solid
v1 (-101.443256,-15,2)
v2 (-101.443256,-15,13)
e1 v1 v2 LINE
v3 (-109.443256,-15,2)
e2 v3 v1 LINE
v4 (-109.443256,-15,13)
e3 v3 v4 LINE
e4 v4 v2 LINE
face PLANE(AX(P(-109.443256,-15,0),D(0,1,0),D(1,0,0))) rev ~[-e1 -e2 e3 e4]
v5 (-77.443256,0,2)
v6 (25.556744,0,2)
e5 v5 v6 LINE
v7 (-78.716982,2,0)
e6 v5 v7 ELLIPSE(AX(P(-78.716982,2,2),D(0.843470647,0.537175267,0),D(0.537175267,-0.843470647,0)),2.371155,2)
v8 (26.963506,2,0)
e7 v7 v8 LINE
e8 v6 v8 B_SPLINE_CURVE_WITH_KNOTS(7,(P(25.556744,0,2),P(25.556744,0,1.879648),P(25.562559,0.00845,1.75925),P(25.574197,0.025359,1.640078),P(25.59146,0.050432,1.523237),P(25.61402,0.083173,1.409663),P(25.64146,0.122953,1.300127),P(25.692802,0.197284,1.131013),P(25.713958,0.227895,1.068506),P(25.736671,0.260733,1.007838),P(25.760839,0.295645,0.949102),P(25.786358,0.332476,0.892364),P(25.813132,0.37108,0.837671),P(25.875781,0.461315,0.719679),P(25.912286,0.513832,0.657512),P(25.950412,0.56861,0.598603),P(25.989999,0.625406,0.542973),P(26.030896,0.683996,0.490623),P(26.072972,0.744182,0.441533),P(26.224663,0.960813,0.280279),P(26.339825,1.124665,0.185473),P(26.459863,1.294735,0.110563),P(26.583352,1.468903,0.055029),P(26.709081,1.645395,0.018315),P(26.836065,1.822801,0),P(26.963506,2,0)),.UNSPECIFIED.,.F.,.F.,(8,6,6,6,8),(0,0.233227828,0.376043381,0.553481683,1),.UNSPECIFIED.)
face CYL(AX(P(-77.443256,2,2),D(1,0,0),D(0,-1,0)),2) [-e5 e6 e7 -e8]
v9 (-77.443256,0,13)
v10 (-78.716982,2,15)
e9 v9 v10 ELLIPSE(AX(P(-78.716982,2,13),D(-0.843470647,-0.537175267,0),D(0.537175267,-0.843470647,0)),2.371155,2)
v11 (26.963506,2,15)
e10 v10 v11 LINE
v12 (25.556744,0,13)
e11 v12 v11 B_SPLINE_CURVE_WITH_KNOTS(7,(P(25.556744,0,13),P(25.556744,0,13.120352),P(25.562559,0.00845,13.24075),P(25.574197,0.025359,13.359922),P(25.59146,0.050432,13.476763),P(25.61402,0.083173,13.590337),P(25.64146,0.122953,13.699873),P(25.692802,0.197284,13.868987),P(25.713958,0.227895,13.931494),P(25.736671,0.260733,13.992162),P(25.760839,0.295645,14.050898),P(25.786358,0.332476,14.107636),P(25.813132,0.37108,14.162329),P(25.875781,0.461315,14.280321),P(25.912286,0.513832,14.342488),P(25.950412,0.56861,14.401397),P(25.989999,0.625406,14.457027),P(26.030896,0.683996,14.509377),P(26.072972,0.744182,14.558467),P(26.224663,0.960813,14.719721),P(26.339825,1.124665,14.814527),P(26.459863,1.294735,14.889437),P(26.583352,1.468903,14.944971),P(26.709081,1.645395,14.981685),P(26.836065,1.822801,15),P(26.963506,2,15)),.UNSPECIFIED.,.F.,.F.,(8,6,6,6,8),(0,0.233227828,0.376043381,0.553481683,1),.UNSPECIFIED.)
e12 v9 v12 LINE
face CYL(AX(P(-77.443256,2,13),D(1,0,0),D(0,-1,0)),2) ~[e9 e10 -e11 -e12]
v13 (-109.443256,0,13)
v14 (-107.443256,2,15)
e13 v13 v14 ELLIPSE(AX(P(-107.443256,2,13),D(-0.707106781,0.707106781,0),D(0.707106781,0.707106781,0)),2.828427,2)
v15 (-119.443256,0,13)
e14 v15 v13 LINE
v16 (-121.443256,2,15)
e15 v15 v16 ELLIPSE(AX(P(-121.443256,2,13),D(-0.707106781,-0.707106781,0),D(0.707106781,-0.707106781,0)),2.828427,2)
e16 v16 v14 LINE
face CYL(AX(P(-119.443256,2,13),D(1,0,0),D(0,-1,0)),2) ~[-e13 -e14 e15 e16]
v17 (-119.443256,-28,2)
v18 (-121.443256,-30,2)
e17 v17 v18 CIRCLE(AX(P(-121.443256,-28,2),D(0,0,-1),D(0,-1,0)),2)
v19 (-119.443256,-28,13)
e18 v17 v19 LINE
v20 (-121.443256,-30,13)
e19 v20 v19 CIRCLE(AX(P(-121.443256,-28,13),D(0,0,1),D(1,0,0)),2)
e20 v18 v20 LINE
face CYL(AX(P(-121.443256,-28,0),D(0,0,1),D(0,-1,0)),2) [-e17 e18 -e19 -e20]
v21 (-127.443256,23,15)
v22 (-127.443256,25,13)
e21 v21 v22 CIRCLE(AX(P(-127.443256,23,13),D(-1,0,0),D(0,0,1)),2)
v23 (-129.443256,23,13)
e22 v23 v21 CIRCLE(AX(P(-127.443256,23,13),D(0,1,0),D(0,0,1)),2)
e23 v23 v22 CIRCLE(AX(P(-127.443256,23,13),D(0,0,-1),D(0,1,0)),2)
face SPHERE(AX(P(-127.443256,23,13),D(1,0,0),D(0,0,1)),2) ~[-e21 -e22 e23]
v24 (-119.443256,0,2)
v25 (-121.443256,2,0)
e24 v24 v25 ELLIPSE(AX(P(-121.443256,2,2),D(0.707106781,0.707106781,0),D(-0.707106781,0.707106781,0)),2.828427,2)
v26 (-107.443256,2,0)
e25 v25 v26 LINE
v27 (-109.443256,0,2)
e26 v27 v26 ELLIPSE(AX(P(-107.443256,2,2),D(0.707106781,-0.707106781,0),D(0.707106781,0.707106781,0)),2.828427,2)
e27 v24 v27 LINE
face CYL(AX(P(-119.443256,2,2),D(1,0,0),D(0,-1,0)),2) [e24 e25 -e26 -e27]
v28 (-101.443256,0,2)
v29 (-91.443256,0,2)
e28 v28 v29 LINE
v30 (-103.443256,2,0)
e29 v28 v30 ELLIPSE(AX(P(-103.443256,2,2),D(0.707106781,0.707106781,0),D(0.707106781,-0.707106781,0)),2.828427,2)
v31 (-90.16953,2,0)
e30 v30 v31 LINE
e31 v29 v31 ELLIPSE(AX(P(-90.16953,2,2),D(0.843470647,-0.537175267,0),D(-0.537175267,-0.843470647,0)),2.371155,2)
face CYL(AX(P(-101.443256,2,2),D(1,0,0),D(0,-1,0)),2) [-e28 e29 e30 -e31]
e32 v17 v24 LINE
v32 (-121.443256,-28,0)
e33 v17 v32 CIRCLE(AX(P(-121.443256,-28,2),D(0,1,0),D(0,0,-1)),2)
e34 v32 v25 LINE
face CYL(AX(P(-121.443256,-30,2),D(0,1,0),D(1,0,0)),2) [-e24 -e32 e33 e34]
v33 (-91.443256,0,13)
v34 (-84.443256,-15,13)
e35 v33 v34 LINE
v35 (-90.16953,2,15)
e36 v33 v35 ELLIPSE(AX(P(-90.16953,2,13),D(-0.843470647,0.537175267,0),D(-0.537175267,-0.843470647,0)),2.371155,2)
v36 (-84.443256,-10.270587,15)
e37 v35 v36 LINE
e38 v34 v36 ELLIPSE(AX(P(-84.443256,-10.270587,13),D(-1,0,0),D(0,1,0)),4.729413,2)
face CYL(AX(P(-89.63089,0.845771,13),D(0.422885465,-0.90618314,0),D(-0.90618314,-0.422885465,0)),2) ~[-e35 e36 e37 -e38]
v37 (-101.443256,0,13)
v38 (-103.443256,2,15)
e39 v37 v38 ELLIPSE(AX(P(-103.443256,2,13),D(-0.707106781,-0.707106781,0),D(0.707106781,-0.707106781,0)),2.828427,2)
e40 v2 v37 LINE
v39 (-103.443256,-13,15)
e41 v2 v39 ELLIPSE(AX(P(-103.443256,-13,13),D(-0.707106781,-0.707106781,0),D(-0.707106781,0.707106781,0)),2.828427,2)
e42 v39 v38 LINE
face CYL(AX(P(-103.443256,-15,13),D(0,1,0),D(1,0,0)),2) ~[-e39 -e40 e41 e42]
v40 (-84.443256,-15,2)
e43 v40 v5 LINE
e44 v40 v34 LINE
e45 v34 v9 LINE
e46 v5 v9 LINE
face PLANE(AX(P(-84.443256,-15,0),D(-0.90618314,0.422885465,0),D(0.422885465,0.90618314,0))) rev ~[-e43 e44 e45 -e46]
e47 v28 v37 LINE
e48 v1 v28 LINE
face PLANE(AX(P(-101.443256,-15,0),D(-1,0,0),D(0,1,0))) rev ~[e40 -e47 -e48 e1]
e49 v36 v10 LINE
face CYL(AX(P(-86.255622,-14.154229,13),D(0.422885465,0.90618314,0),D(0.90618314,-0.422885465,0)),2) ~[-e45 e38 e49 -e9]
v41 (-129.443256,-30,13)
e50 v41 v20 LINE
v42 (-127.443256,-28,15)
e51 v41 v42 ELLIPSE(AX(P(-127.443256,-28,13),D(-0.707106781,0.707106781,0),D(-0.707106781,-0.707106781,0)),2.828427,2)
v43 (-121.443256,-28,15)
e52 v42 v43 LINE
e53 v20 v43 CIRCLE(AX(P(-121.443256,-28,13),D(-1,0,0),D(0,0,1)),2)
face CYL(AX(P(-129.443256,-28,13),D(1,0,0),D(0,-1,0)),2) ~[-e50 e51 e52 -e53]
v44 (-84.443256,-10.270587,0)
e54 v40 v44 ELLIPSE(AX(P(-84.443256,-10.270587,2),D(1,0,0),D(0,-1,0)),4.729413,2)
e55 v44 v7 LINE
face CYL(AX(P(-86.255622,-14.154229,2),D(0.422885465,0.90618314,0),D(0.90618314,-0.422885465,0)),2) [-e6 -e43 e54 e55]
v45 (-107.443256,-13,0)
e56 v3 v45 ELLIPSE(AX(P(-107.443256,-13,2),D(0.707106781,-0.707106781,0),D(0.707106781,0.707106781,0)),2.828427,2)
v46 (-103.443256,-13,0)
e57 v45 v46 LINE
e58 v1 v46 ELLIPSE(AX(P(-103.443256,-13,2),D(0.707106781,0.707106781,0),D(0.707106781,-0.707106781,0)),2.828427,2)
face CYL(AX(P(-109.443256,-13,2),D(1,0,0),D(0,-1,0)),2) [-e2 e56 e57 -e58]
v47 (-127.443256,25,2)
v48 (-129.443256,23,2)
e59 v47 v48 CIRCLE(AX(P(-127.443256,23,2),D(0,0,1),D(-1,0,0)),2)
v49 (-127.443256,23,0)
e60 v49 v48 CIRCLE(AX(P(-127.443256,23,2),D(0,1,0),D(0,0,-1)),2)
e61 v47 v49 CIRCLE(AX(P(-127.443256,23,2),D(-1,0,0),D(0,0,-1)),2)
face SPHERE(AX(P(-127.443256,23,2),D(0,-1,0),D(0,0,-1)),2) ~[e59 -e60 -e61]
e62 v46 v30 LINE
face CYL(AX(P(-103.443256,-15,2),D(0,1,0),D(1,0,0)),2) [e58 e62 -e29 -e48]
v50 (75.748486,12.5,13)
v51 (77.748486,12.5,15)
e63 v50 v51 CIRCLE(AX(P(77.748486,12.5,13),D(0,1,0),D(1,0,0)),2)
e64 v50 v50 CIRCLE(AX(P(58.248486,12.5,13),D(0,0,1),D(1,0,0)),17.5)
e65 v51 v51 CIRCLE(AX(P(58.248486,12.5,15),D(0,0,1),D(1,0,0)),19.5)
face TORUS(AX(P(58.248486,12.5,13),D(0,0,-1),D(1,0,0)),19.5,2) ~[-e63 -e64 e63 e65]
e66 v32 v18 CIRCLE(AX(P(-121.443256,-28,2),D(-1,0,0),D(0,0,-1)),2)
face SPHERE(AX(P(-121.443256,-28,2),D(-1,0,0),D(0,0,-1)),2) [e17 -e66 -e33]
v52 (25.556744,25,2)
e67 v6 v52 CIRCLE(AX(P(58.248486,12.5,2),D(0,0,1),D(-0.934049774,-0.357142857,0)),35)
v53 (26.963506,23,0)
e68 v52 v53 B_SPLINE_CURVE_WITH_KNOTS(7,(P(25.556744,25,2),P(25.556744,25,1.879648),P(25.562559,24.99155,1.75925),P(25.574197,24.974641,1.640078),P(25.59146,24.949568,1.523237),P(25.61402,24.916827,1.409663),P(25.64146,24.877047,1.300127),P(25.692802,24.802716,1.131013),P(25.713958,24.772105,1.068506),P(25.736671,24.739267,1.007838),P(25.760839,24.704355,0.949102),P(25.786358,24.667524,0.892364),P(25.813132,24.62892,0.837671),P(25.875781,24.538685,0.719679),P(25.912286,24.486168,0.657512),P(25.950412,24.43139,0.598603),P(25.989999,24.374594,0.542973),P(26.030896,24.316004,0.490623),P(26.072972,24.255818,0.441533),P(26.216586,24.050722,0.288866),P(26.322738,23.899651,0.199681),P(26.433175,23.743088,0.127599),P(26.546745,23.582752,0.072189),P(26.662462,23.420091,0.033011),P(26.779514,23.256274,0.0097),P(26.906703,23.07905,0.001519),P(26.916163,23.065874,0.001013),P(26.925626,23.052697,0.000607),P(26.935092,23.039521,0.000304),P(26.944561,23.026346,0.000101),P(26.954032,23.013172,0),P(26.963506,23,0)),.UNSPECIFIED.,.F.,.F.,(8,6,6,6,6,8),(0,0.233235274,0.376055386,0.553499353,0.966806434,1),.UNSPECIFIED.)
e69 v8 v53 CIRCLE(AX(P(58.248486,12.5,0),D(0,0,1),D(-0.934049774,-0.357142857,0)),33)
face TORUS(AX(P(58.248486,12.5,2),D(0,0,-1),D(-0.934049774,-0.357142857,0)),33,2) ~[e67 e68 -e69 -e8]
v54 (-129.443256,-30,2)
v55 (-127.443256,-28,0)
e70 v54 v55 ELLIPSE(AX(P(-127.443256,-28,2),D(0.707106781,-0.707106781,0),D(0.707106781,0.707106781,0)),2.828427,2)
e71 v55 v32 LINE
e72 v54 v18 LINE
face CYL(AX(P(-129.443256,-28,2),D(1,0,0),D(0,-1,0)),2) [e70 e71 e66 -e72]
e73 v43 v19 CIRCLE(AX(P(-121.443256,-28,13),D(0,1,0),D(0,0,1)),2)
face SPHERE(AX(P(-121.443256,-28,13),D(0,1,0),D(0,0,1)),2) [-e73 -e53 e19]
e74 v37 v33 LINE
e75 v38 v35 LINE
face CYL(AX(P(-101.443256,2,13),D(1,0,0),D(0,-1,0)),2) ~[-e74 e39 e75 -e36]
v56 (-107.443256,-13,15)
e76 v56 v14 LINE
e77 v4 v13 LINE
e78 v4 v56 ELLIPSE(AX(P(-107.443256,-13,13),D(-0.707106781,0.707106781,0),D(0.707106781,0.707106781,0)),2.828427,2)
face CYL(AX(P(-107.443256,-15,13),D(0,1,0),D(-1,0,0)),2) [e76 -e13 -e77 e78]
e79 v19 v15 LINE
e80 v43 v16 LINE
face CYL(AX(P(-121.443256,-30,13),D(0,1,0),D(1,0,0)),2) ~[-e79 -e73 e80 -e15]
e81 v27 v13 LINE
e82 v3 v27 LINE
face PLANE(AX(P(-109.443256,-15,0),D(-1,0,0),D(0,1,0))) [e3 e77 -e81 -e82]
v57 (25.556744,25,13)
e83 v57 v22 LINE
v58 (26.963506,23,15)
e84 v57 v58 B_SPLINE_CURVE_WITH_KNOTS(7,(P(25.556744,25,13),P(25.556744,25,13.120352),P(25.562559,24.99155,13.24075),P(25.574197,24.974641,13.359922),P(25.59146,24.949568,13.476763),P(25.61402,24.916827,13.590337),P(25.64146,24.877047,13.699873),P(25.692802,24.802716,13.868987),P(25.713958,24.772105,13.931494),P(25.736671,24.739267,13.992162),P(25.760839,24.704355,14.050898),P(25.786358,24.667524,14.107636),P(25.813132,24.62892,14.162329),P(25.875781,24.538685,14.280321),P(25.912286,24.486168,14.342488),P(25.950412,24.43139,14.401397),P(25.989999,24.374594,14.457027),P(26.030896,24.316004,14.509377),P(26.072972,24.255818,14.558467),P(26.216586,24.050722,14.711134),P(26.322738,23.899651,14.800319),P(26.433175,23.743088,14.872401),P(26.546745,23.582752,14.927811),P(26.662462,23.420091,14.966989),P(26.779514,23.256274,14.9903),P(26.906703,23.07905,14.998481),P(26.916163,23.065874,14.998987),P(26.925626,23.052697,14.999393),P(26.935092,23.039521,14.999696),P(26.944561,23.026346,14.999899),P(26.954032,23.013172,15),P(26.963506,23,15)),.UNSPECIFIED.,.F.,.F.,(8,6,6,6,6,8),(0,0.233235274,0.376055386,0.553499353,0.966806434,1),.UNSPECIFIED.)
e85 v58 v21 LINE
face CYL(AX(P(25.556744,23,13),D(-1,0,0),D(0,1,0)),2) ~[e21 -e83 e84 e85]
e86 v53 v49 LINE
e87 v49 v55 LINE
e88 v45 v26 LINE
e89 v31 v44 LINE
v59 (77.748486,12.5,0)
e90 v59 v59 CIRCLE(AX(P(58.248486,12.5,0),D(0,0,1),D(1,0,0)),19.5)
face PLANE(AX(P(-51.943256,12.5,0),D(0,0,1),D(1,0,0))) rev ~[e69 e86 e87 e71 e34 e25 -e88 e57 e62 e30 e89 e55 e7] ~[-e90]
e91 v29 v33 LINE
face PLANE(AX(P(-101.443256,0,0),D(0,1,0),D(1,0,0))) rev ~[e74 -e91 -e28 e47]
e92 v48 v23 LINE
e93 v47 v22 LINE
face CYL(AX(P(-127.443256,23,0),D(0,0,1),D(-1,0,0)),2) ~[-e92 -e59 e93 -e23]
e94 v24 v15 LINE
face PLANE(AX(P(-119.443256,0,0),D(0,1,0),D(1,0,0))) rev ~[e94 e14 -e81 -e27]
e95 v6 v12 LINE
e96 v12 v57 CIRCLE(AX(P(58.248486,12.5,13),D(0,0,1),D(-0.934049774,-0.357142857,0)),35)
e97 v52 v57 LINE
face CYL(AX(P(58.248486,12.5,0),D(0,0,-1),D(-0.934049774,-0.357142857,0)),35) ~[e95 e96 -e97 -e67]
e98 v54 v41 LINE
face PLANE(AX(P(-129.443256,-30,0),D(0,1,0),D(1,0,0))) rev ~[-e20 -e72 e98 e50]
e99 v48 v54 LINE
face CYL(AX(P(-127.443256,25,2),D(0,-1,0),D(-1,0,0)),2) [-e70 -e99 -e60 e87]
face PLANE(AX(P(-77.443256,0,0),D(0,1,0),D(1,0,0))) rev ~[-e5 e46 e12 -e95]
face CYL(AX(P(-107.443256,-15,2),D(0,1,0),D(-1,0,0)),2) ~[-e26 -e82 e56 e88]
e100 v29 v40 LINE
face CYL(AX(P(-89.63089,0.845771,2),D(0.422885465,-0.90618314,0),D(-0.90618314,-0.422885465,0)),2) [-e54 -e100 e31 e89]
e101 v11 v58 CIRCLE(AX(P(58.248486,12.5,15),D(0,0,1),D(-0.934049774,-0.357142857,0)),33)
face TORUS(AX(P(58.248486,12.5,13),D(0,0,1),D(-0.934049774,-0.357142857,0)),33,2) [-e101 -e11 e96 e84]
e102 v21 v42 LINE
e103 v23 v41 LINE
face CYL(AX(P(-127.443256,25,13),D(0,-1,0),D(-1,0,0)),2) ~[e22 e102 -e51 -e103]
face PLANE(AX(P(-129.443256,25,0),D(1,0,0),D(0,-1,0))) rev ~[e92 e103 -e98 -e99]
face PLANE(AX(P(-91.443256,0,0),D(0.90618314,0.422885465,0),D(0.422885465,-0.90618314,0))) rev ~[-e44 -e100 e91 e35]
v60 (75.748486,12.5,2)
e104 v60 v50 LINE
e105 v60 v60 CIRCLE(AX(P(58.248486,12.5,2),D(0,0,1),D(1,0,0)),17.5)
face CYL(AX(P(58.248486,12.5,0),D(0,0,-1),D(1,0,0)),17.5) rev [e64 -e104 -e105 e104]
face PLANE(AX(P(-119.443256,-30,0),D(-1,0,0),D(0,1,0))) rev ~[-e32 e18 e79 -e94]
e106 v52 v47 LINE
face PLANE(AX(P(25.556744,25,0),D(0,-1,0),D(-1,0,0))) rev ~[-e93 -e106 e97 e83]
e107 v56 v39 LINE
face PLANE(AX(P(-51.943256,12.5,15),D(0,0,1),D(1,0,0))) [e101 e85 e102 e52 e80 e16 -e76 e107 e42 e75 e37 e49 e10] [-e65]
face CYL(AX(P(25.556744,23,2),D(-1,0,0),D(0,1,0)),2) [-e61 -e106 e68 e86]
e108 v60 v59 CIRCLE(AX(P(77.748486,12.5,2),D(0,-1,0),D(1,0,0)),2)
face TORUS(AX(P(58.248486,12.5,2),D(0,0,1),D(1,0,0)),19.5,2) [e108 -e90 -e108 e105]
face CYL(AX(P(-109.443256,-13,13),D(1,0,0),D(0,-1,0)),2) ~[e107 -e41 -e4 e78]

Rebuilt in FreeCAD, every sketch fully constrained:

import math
import FreeCAD as App
import Part
import Sketcher
from FreeCAD import Vector


def edges_at(feature, points):
    """Names of the edges that pass closest to the given points."""
    edges = feature.Shape.Edges
    near = lambda p: min(range(len(edges)), key=lambda i: edges[i].distToShape(Part.Vertex(*p))[0])
    return sorted({f"Edge{near(p) + 1}" for p in points})

doc = App.newDocument("Part")
params = doc.addObject("Spreadsheet::Sheet", "Params")
for row, (alias, value) in enumerate([
    ("sketch1_diameter", "35 mm"),
    ("sketch1_radius", "35 mm"),
    ("sketch1_width", "10 mm"),
    ("sketch1_width2", "8 mm"),
    ("sketch1_width3", "103 mm"),
    ("pad1_length", "15 mm"),
    ("fillet_radius", "2 mm"),
], start=1):
    params.set(f"A{row}", alias)
    params.set(f"B{row}", "=" + value)
    params.setAlias(f"B{row}", alias)

body = doc.addObject("PartDesign::Body", "Body")

sketch1 = doc.addObject("Sketcher::SketchObject", "Sketch")
body.addObject(sketch1)
sketch1.AttachmentSupport = (doc.XY_Plane, [""])
sketch1.MapMode = "FlatFace"
sketch1.addGeometry([
    Part.LineSegment(Vector(-129, 25, 0), Vector(-129, -30, 0)),
    Part.LineSegment(Vector(-129, -30, 0), Vector(-119, -30, 0)),
    Part.LineSegment(Vector(-119, -30, 0), Vector(-119, 0, 0)),
    Part.LineSegment(Vector(-119, 0, 0), Vector(-109, 0, 0)),
    Part.LineSegment(Vector(-109, 0, 0), Vector(-109, -15, 0)),
    Part.LineSegment(Vector(-109, -15, 0), Vector(-101, -15, 0)),
    Part.LineSegment(Vector(-101, -15, 0), Vector(-101, 0, 0)),
    Part.LineSegment(Vector(-101, 0, 0), Vector(-91, 0, 0)),
    Part.LineSegment(Vector(-91, 0, 0), Vector(-84, -15, 0)),
    Part.LineSegment(Vector(-84, -15, 0), Vector(-77, 0, 0)),
    Part.LineSegment(Vector(-77, 0, 0), Vector(26, 0, 0)),
    Part.ArcOfCircle(Part.Circle(Vector(58, 12, 0), Vector(0, 0, 1), 35), math.radians(-159), math.radians(159)),
    Part.LineSegment(Vector(26, 25, 0), Vector(-129, 25, 0)),
    Part.Circle(Vector(58, 12, 0), Vector(0, 0, 1), 18),
], False)
sketch1.addConstraint([
    Sketcher.Constraint("Coincident", 0, 2, 1, 1),
    Sketcher.Constraint("Coincident", 1, 2, 2, 1),
    Sketcher.Constraint("Coincident", 2, 2, 3, 1),
    Sketcher.Constraint("Coincident", 3, 2, 4, 1),
    Sketcher.Constraint("Coincident", 4, 2, 5, 1),
    Sketcher.Constraint("Coincident", 5, 2, 6, 1),
    Sketcher.Constraint("Coincident", 6, 2, 7, 1),
    Sketcher.Constraint("Coincident", 7, 2, 8, 1),
    Sketcher.Constraint("Coincident", 8, 2, 9, 1),
    Sketcher.Constraint("Coincident", 9, 2, 10, 1),
    Sketcher.Constraint("Coincident", 10, 2, 11, 1),
    Sketcher.Constraint("Coincident", 11, 2, 12, 1),
    Sketcher.Constraint("Coincident", 12, 2, 0, 1),
    Sketcher.Constraint("Vertical", 0),
    Sketcher.Constraint("Horizontal", 1),
    Sketcher.Constraint("Vertical", 2),
    Sketcher.Constraint("Horizontal", 3),
    Sketcher.Constraint("Vertical", 4),
    Sketcher.Constraint("Horizontal", 5),
    Sketcher.Constraint("Vertical", 6),
    Sketcher.Constraint("Horizontal", 7),
    Sketcher.Constraint("Horizontal", 10),
    Sketcher.Constraint("Horizontal", 12),
    Sketcher.Constraint("Coincident", 13, 3, 11, 3),
    Sketcher.Constraint("PointOnObject", 2, 2, -1),
    Sketcher.Constraint("PointOnObject", 6, 2, -1),
    Sketcher.Constraint("PointOnObject", 9, 2, -1),
    Sketcher.Constraint("Horizontal", 5, 2, 8, 2),
    Sketcher.Constraint("Vertical", 10, 2, 11, 2),
    Sketcher.Constraint("Equal", 1, 3),
    Sketcher.Constraint("Equal", 3, 7),
    Sketcher.Constraint("Equal", 8, 9),
    Sketcher.Constraint("Diameter", 13, 35.0),
    Sketcher.Constraint("Radius", 11, 35.0),
    Sketcher.Constraint("DistanceX", 1, 1, 1, 2, 10.0),
    Sketcher.Constraint("DistanceX", 5, 1, 5, 2, 8.0),
    Sketcher.Constraint("DistanceX", 10, 1, 10, 2, 103.0),
    Sketcher.Constraint("DistanceX", 12, 2, 12, 1, 155.0),
    Sketcher.Constraint("DistanceY", 0, 2, 0, 1, 55.0),
    Sketcher.Constraint("DistanceY", 2, 1, 2, 2, 30.0),
    Sketcher.Constraint("DistanceY", 4, 2, 4, 1, 15.0),
    Sketcher.Constraint("DistanceX", -1, 1, 11, 3, 58.248486),
])
sketch1.setExpression("Constraints[32]", "Params.sketch1_diameter")
sketch1.setExpression("Constraints[33]", "Params.sketch1_radius")
sketch1.setExpression("Constraints[34]", "Params.sketch1_width")
sketch1.setExpression("Constraints[35]", "Params.sketch1_width2")
sketch1.setExpression("Constraints[36]", "Params.sketch1_width3")
pad1 = doc.addObject("PartDesign::Pad", "Pad")
body.addObject(pad1)
pad1.Profile = sketch1
pad1.setExpression("Length", "Params.pad1_length")
doc.recompute()

fillet = doc.addObject("PartDesign::Fillet", "Fillet")
body.addObject(fillet)
fillet.Base = (pad1, edges_at(pad1, [
    (-25.943, 0, 15),
    (-80.943, -7.5, 15),
    (93.248, 12.5, 15),
    (-51.943, 25, 15),
    (-87.943, -7.5, 15),
    (-96.443, 0, 15),
    (-101.443, -7.5, 15),
    (-114.443, 0, 15),
    (-119.443, -15, 15),
    (-129.443, -2.5, 15),
    (-124.443, -30, 15),
    (-109.443, -7.5, 15),
    (-105.443, -15, 15),
    (40.748, 12.5, 15),
    (-124.443, -30, 0),
    (-119.443, -15, 0),
    (-129.443, -2.5, 0),
    (-51.943, 25, 0),
    (-114.443, 0, 0),
    (-109.443, -7.5, 0),
    (-105.443, -15, 0),
    (-87.943, -7.5, 0),
    (-96.443, 0, 0),
    (-101.443, -7.5, 0),
    (-25.943, 0, 0),
    (-80.943, -7.5, 0),
    (93.248, 12.5, 0),
    (40.748, 12.5, 0),
    (-129.443, 25, 7.5),
    (-119.443, -30, 7.5),
]))
fillet.setExpression("Radius", "Params.fillet_radius")

doc.recompute()
